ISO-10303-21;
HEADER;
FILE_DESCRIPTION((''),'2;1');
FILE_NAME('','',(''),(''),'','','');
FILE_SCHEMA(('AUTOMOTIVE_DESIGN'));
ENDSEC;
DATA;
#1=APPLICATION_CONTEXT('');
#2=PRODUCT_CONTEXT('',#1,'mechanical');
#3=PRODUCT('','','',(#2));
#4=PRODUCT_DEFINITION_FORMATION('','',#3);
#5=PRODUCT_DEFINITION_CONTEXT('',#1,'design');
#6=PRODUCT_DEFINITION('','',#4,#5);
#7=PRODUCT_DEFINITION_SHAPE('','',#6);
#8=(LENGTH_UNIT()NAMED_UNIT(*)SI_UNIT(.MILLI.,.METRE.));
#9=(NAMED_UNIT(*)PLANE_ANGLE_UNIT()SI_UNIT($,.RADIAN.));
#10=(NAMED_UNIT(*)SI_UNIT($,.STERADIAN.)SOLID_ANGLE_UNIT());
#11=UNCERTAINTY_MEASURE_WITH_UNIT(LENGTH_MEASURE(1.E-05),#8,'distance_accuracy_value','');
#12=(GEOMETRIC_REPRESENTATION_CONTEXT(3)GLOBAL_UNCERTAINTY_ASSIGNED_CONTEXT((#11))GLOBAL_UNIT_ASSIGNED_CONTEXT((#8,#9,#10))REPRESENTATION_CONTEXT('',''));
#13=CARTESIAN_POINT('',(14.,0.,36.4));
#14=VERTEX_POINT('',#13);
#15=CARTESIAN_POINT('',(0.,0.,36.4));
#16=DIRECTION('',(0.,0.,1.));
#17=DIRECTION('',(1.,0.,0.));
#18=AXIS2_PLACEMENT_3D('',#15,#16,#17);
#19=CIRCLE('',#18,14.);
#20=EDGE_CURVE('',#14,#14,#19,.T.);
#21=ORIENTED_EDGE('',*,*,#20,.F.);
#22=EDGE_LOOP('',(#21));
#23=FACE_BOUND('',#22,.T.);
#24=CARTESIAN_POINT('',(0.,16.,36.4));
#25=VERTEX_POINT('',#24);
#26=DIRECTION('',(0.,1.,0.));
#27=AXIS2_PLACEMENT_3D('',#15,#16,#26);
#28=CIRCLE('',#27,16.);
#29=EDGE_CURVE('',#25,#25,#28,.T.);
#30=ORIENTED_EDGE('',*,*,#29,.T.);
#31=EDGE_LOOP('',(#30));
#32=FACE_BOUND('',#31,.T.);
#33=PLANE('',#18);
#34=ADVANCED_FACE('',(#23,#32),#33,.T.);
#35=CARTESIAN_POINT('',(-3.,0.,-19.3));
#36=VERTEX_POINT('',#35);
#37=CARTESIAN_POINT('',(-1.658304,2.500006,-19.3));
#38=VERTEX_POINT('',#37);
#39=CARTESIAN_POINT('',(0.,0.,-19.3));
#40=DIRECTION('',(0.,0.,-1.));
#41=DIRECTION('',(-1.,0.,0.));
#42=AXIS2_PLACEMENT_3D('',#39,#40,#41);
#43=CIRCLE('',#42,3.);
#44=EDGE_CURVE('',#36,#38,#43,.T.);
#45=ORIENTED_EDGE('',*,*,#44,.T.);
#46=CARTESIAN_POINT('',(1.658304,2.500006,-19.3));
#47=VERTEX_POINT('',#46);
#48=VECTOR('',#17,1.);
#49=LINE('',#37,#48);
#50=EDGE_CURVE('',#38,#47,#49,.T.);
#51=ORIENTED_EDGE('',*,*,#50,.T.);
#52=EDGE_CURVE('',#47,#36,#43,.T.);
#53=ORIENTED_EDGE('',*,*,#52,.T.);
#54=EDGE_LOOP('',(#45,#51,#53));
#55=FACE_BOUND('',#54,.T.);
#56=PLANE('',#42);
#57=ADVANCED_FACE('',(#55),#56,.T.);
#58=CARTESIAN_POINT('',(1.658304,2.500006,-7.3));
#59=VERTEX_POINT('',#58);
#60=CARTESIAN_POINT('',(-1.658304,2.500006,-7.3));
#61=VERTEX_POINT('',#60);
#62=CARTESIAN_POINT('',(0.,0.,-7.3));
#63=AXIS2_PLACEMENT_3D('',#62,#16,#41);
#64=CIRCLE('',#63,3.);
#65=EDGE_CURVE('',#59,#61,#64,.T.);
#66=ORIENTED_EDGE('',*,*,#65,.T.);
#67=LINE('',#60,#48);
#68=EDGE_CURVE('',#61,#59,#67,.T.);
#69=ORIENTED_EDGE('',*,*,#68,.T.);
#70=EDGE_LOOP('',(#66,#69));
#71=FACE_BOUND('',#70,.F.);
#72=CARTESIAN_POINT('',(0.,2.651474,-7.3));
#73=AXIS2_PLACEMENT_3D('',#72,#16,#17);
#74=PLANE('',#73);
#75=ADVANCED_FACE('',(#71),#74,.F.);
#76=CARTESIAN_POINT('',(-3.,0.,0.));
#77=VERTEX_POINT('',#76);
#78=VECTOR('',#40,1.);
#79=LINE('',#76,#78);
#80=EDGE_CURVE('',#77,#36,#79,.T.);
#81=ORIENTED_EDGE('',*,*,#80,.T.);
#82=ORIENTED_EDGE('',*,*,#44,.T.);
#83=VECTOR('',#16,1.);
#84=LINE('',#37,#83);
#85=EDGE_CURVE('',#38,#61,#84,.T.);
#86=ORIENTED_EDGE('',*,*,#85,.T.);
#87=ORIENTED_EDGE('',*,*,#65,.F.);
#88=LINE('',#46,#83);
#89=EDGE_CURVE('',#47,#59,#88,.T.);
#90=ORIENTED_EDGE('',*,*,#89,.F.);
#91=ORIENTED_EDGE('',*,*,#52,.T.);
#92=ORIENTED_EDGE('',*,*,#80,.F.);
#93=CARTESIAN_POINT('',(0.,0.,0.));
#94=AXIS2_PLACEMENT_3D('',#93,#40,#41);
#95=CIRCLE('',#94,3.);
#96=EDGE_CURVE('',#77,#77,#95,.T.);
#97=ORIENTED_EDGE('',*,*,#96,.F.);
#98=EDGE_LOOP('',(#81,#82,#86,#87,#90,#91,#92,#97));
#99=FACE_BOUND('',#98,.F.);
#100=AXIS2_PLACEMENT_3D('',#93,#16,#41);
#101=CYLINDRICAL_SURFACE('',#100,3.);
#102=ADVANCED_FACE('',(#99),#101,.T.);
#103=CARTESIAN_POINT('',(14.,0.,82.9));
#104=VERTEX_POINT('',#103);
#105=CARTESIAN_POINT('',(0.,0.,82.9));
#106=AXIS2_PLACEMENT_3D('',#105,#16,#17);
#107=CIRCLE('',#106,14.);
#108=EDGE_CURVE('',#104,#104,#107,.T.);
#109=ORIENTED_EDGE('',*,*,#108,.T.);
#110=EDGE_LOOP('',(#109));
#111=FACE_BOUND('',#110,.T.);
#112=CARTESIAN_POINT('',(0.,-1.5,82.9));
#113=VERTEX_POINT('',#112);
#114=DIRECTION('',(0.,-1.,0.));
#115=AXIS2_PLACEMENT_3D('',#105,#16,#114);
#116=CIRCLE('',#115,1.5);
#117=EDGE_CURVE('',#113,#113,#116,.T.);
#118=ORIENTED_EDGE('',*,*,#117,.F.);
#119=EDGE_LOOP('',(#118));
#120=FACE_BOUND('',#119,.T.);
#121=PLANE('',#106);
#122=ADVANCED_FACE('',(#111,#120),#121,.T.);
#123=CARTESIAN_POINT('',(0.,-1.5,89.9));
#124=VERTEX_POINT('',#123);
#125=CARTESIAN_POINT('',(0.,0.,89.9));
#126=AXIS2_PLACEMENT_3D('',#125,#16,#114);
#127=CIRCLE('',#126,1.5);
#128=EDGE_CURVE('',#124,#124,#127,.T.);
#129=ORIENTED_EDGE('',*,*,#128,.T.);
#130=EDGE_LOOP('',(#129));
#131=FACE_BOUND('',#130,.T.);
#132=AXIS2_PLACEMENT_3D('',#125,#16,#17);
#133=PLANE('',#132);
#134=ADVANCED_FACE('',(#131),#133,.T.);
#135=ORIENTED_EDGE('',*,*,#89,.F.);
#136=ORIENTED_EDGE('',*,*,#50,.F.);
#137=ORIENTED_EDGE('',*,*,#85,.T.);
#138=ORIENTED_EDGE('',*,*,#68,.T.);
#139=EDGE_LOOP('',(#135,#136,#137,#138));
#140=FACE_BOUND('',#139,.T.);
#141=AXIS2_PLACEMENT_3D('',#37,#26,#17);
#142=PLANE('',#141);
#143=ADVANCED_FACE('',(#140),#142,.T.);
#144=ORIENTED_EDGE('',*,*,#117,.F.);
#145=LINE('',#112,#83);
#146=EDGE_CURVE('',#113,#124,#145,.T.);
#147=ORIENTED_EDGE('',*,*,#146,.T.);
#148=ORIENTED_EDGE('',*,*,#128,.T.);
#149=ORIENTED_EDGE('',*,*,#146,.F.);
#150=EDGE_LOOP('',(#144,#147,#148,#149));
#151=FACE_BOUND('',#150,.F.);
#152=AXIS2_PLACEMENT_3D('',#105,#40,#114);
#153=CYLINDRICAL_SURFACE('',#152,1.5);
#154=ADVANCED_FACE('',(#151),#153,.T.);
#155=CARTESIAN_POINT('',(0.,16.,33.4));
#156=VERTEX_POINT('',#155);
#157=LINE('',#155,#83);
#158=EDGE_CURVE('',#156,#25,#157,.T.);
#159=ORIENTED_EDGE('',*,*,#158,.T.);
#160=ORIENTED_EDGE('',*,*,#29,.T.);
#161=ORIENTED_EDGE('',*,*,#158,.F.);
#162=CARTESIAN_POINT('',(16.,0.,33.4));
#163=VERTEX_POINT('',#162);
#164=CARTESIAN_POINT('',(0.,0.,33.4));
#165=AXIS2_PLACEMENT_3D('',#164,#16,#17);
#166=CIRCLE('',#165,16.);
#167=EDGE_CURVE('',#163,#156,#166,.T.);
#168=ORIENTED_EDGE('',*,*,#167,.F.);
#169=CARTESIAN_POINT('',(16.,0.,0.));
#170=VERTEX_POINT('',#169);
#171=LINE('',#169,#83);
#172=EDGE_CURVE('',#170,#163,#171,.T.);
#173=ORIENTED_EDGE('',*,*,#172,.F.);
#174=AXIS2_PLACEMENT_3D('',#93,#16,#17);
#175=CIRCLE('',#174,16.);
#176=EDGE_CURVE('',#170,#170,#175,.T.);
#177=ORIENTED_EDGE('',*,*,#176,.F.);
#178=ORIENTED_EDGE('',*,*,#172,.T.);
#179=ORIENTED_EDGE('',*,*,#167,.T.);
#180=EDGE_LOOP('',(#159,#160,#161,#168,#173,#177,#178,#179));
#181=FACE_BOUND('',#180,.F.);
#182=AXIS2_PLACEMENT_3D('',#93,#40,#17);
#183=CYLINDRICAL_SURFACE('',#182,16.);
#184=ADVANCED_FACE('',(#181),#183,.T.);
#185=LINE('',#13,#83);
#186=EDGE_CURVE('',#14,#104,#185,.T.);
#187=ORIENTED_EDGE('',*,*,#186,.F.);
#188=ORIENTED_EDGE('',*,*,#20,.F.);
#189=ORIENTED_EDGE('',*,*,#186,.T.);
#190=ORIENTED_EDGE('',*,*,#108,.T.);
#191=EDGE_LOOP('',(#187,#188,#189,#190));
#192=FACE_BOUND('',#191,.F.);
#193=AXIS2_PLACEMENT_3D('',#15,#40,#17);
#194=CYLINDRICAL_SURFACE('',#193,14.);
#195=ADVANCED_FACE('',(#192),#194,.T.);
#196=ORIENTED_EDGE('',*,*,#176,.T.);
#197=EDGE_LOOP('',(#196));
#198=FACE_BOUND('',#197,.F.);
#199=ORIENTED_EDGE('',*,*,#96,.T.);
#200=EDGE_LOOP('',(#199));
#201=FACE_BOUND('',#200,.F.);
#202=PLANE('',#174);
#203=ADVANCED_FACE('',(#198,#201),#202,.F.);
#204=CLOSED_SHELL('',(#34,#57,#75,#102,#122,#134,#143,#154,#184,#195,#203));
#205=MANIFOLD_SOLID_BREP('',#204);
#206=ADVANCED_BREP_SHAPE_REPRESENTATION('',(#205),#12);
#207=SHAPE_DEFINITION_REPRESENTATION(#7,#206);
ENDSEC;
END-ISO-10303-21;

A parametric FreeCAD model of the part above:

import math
import FreeCAD as App
import Part
import Sketcher
from FreeCAD import Vector
Q = App.Units.Quantity

doc = App.newDocument("Part")
body = doc.addObject("PartDesign::Body", "Body")

sketch1 = doc.addObject("Sketcher::SketchObject", "Sketch")
body.addObject(sketch1)
sketch1.AttachmentSupport = (doc.XY_Plane, [""])
sketch1.MapMode = "FlatFace"
sketch1.addGeometry(Part.Circle(Vector(0, 0, 0), Vector(0, 0, 1), 16), False)
sketch1.addConstraint([
    Sketcher.Constraint("Coincident", 0, 3, -1, 1),
    Sketcher.Constraint("Diameter", 0, Q("32 mm")),
])
pad1 = doc.addObject("PartDesign::Pad", "Pad")
body.addObject(pad1)
pad1.Profile = sketch1
pad1.Length = 33.4

sketch2 = doc.addObject("Sketcher::SketchObject", "Sketch001")
body.addObject(sketch2)
sketch2.AttachmentSupport = (doc.XY_Plane, [""])
sketch2.MapMode = "FlatFace"
sketch2.AttachmentOffset = App.Placement(Vector(0, 0, 33.4), App.Rotation())
sketch2.addGeometry(Part.Circle(Vector(0, 0, 0), Vector(0, 0, 1), 16), False)
sketch2.addConstraint([
    Sketcher.Constraint("Coincident", 0, 3, -1, 1),
    Sketcher.Constraint("Diameter", 0, Q("32 mm")),
])
pad2 = doc.addObject("PartDesign::Pad", "Pad001")
body.addObject(pad2)
pad2.Profile = sketch2
pad2.Length = 3

sketch3 = doc.addObject("Sketcher::SketchObject", "Sketch002")
body.addObject(sketch3)
sketch3.AttachmentSupport = (doc.XY_Plane, [""])
sketch3.MapMode = "FlatFace"
sketch3.AttachmentOffset = App.Placement(Vector(0, 0, 36.4), App.Rotation())
sketch3.addGeometry(Part.Circle(Vector(0, 0, 0), Vector(0, 0, 1), 14), False)
sketch3.addConstraint([
    Sketcher.Constraint("Coincident", 0, 3, -1, 1),
    Sketcher.Constraint("Diameter", 0, Q("28 mm")),
])
pad3 = doc.addObject("PartDesign::Pad", "Pad002")
body.addObject(pad3)
pad3.Profile = sketch3
pad3.Length = 46.5

sketch4 = doc.addObject("Sketcher::SketchObject", "Sketch003")
body.addObject(sketch4)
sketch4.AttachmentSupport = (doc.XY_Plane, [""])
sketch4.MapMode = "FlatFace"
sketch4.AttachmentOffset = App.Placement(Vector(0, 0, 82.9), App.Rotation())
sketch4.addGeometry(Part.Circle(Vector(0, 0, 0), Vector(0, 0, 1), 1.5), False)
sketch4.addConstraint([
    Sketcher.Constraint("Coincident", 0, 3, -1, 1),
    Sketcher.Constraint("Diameter", 0, Q("3 mm")),
])
pad4 = doc.addObject("PartDesign::Pad", "Pad003")
body.addObject(pad4)
pad4.Profile = sketch4
pad4.Length = 7

sketch5 = doc.addObject("Sketcher::SketchObject", "Sketch004")
body.addObject(sketch5)
sketch5.AttachmentSupport = (doc.XY_Plane, [""])
sketch5.MapMode = "FlatFace"
sketch5.addGeometry(Part.Circle(Vector(0, 0, 0), Vector(0, 0, 1), 3), False)
sketch5.addConstraint([
    Sketcher.Constraint("Coincident", 0, 3, -1, 1),
    Sketcher.Constraint("Diameter", 0, Q("6 mm")),
])
pad5 = doc.addObject("PartDesign::Pad", "Pad004")
body.addObject(pad5)
pad5.Profile = sketch5
pad5.Length = 19.3
pad5.Reversed = True

sketch6 = doc.addObject("Sketcher::SketchObject", "Sketch005")
body.addObject(sketch6)
sketch6.AttachmentSupport = (doc.XY_Plane, [""])
sketch6.MapMode = "FlatFace"
sketch6.AttachmentOffset = App.Placement(Vector(0, 0, -19.3), App.Rotation())
sketch6.addGeometry([
    Part.LineSegment(Vector(1.7, 2.5, 0), Vector(-1.7, 2.5, 0)),
    Part.ArcOfCircle(Part.Circle(Vector(0, 0, 0), Vector(0, 0, 1), 3), math.radians(56), math.radians(124)),
], False)
sketch6.addConstraint([
    Sketcher.Constraint("Coincident", 0, 1, 1, 1),
    Sketcher.Constraint("Coincident", 1, 2, 0, 2),
    Sketcher.Constraint("Horizontal", 0),
    Sketcher.Constraint("Coincident", 1, 3, -1, 1),
    Sketcher.Constraint("Radius", 1, Q("3 mm")),
    Sketcher.Constraint("DistanceY", -1, 1, 0, 1, Q("2.5 mm")),
])
pocket1 = doc.addObject("PartDesign::Pocket", "Pocket")
body.addObject(pocket1)
pocket1.Profile = sketch6
pocket1.Length = 12
pocket1.Reversed = True

doc.recompute()
